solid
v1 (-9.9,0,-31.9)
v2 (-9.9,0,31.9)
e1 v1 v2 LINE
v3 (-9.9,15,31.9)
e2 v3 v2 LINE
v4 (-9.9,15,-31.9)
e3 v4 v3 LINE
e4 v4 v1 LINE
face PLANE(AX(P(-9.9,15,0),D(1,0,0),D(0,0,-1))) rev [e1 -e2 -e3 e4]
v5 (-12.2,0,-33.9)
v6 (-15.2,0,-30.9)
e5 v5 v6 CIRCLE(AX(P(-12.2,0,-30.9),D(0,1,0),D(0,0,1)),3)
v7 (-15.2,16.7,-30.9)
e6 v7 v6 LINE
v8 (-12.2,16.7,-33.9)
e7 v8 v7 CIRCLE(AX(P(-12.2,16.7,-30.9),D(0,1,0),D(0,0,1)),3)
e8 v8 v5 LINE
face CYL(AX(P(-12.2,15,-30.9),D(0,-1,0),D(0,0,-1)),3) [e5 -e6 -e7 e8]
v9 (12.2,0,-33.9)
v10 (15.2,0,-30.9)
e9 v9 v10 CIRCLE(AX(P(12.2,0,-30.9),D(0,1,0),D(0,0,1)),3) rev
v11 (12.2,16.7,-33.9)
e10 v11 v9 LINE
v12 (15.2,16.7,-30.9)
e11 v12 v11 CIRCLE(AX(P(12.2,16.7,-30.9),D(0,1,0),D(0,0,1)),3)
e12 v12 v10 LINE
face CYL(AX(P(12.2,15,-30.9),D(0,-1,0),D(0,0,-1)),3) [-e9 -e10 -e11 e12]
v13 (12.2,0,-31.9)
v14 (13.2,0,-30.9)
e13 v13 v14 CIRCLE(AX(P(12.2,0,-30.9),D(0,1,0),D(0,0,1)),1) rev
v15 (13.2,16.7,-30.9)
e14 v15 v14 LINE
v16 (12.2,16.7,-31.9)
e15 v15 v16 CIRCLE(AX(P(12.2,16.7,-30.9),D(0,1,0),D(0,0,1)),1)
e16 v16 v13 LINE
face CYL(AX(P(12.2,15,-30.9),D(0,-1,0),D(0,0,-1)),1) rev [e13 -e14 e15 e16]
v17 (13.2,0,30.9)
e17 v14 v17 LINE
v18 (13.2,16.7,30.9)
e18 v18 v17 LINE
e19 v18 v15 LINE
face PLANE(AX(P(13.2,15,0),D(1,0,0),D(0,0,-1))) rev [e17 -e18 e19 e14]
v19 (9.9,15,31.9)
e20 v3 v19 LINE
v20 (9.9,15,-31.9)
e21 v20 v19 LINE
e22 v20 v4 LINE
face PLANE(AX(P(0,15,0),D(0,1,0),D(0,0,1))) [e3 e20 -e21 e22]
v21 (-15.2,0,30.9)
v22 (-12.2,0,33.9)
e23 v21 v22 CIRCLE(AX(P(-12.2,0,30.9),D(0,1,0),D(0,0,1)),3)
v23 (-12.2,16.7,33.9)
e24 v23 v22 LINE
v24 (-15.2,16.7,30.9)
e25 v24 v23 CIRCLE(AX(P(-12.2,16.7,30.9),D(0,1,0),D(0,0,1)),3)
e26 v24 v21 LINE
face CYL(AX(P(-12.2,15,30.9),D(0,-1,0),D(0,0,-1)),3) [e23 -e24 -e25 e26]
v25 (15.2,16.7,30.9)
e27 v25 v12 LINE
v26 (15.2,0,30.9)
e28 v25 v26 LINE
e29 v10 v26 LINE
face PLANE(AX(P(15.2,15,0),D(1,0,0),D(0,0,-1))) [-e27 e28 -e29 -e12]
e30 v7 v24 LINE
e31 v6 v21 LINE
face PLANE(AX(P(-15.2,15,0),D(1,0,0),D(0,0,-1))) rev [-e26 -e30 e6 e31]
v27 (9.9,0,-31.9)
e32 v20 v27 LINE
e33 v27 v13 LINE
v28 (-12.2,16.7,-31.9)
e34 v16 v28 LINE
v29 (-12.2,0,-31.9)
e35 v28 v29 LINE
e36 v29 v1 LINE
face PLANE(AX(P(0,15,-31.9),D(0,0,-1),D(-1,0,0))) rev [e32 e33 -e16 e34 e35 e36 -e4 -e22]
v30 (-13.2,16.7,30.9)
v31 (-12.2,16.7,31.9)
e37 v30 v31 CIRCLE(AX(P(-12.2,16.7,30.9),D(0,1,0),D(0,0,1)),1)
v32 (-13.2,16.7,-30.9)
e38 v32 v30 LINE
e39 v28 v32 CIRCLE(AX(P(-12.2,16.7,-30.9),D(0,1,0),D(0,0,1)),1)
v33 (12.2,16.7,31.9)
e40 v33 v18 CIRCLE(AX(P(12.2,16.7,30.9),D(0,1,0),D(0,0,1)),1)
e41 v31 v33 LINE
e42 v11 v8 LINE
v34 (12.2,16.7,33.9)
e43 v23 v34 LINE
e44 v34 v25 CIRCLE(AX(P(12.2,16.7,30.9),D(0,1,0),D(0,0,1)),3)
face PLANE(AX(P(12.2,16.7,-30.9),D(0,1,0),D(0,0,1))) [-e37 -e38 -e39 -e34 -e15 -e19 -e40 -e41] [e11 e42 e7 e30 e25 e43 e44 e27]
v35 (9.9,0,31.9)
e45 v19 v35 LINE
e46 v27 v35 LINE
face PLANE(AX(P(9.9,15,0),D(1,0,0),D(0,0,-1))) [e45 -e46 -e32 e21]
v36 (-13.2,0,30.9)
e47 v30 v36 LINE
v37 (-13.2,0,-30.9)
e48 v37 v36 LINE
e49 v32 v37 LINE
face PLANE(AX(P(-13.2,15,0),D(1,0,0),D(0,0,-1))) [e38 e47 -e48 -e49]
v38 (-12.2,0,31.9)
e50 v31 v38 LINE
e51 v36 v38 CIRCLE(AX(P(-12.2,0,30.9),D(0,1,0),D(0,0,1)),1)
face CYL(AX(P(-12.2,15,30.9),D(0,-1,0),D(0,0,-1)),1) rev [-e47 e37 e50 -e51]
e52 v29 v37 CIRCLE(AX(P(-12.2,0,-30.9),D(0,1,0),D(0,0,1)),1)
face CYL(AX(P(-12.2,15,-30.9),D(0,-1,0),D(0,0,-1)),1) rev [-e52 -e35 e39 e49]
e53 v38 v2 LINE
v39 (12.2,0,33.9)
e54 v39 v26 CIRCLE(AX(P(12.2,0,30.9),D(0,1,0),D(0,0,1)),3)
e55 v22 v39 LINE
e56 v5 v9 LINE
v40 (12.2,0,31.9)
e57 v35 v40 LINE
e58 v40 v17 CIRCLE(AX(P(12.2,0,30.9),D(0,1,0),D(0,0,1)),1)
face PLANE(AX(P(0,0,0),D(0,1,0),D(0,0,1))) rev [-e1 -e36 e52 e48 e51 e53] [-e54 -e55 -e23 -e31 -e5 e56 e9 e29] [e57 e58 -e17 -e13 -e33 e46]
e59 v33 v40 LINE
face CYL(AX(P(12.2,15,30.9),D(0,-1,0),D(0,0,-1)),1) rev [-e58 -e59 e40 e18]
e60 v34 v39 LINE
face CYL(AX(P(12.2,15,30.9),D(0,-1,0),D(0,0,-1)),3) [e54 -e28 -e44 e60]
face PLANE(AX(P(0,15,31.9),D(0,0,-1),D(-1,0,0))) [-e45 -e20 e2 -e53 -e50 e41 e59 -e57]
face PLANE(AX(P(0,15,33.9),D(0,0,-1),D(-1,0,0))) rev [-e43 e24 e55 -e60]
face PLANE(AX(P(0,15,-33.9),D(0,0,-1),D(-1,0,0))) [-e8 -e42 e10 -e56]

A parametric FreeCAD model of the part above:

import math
import FreeCAD as App
import Part
import Sketcher
from FreeCAD import Vector

doc = App.newDocument("Part")
body = doc.addObject("PartDesign::Body", "Body")

# Sketch on XZ plane
sketch1 = body.newObject("Sketcher::SketchObject", "Sketch")
sketch1.AttachmentSupport = (doc.getObject("XZ_Plane"), [""])
sketch1.MapMode = "FlatFace"
sketch1.addGeometry(Part.ArcOfCircle(Part.Circle(Vector(-12.2, -30.9, 0), Vector(0, 0, 1), 3), math.radians(180), math.radians(270)), False)
sketch1.addGeometry(Part.LineSegment(Vector(-15.2, -30.9, 0), Vector(-15.2, 30.9, 0)), False)
sketch1.addGeometry(Part.ArcOfCircle(Part.Circle(Vector(-12.2, 30.9, 0), Vector(0, 0, 1), 3), math.radians(90), math.radians(180)), False)
sketch1.addGeometry(Part.LineSegment(Vector(-12.2, 33.9, 0), Vector(12.2, 33.9, 0)), False)
sketch1.addGeometry(Part.ArcOfCircle(Part.Circle(Vector(12.2, 30.9, 0), Vector(0, 0, 1), 3), math.radians(0), math.radians(90)), False)
sketch1.addGeometry(Part.LineSegment(Vector(15.2, 30.9, 0), Vector(15.2, -30.9, 0)), False)
sketch1.addGeometry(Part.ArcOfCircle(Part.Circle(Vector(12.2, -30.9, 0), Vector(0, 0, 1), 3), math.radians(-90), math.radians(0)), False)
sketch1.addGeometry(Part.LineSegment(Vector(12.2, -33.9, 0), Vector(-12.2, -33.9, 0)), False)
sketch1.addGeometry(Part.ArcOfCircle(Part.Circle(Vector(-12.2, -30.9, 0), Vector(0, 0, 1), 1), math.radians(-180), math.radians(-90)), False)
sketch1.addGeometry(Part.LineSegment(Vector(-12.2, -31.9, 0), Vector(-9.9, -31.9, 0)), False)
sketch1.addGeometry(Part.LineSegment(Vector(-9.9, -31.9, 0), Vector(-9.9, 31.9, 0)), False)
sketch1.addGeometry(Part.LineSegment(Vector(-9.9, 31.9, 0), Vector(-12.2, 31.9, 0)), False)
sketch1.addGeometry(Part.ArcOfCircle(Part.Circle(Vector(-12.2, 30.9, 0), Vector(0, 0, 1), 1), math.radians(90), math.radians(180)), False)
sketch1.addGeometry(Part.LineSegment(Vector(-13.2, 30.9, 0), Vector(-13.2, -30.9, 0)), False)
sketch1.addGeometry(Part.ArcOfCircle(Part.Circle(Vector(12.2, 30.9, 0), Vector(0, 0, 1), 1), math.radians(0), math.radians(90)), False)
sketch1.addGeometry(Part.LineSegment(Vector(12.2, 31.9, 0), Vector(9.9, 31.9, 0)), False)
sketch1.addGeometry(Part.LineSegment(Vector(9.9, 31.9, 0), Vector(9.9, -31.9, 0)), False)
sketch1.addGeometry(Part.LineSegment(Vector(9.9, -31.9, 0), Vector(12.2, -31.9, 0)), False)
sketch1.addGeometry(Part.ArcOfCircle(Part.Circle(Vector(12.2, -30.9, 0), Vector(0, 0, 1), 1), math.radians(-90), math.radians(0)), False)
sketch1.addGeometry(Part.LineSegment(Vector(13.2, -30.9, 0), Vector(13.2, 30.9, 0)), False)
sketch1.addConstraint(Sketcher.Constraint("Tangent", 0, 1, 1, 1))
sketch1.addConstraint(Sketcher.Constraint("Tangent", 1, 2, 2, 2))
sketch1.addConstraint(Sketcher.Constraint("Tangent", 2, 1, 3, 1))
sketch1.addConstraint(Sketcher.Constraint("Tangent", 3, 2, 4, 2))
sketch1.addConstraint(Sketcher.Constraint("Tangent", 4, 1, 5, 1))
sketch1.addConstraint(Sketcher.Constraint("Tangent", 5, 2, 6, 2))
sketch1.addConstraint(Sketcher.Constraint("Tangent", 6, 1, 7, 1))
sketch1.addConstraint(Sketcher.Constraint("Tangent", 7, 2, 0, 2))
sketch1.addConstraint(Sketcher.Constraint("Tangent", 8, 2, 9, 1))
sketch1.addConstraint(Sketcher.Constraint("Coincident", 9, 2, 10, 1))
sketch1.addConstraint(Sketcher.Constraint("Coincident", 10, 2, 11, 1))
sketch1.addConstraint(Sketcher.Constraint("Tangent", 11, 2, 12, 1))
sketch1.addConstraint(Sketcher.Constraint("Tangent", 12, 2, 13, 1))
sketch1.addConstraint(Sketcher.Constraint("Tangent", 13, 2, 8, 1))
sketch1.addConstraint(Sketcher.Constraint("Tangent", 14, 2, 15, 1))
sketch1.addConstraint(Sketcher.Constraint("Coincident", 15, 2, 16, 1))
sketch1.addConstraint(Sketcher.Constraint("Coincident", 16, 2, 17, 1))
sketch1.addConstraint(Sketcher.Constraint("Tangent", 17, 2, 18, 1))
sketch1.addConstraint(Sketcher.Constraint("Tangent", 18, 2, 19, 1))
sketch1.addConstraint(Sketcher.Constraint("Tangent", 19, 2, 14, 1))
sketch1.addConstraint(Sketcher.Constraint("Vertical", 1))
sketch1.addConstraint(Sketcher.Constraint("Horizontal", 3))
sketch1.addConstraint(Sketcher.Constraint("Vertical", 5))
sketch1.addConstraint(Sketcher.Constraint("Horizontal", 7))
sketch1.addConstraint(Sketcher.Constraint("Horizontal", 9))
sketch1.addConstraint(Sketcher.Constraint("Vertical", 10))
sketch1.addConstraint(Sketcher.Constraint("Horizontal", 11))
sketch1.addConstraint(Sketcher.Constraint("Vertical", 13))
sketch1.addConstraint(Sketcher.Constraint("Horizontal", 15))
sketch1.addConstraint(Sketcher.Constraint("Vertical", 16))
sketch1.addConstraint(Sketcher.Constraint("Horizontal", 17))
sketch1.addConstraint(Sketcher.Constraint("Vertical", 19))
sketch1.addConstraint(Sketcher.Constraint("Coincident", 8, 3, 0, 3))
sketch1.addConstraint(Sketcher.Constraint("Coincident", 12, 3, 2, 3))
sketch1.addConstraint(Sketcher.Constraint("Coincident", 14, 3, 4, 3))
sketch1.addConstraint(Sketcher.Constraint("Coincident", 18, 3, 6, 3))
sketch1.addConstraint(Sketcher.Constraint("Equal", 0, 2))
sketch1.addConstraint(Sketcher.Constraint("Equal", 2, 4))
sketch1.addConstraint(Sketcher.Constraint("Equal", 4, 6))
sketch1.addConstraint(Sketcher.Constraint("Equal", 12, 14))
sketch1.addConstraint(Sketcher.Constraint("Symmetric", 0, 3, 4, 3, -1, 1))
sketch1.addConstraint(Sketcher.Constraint("Equal", 11, 15))
sketch1.addConstraint(Sketcher.Constraint("Radius", 0, 3.0))
sketch1.addConstraint(Sketcher.Constraint("Radius", 8, 1.0))
sketch1.addConstraint(Sketcher.Constraint("DistanceX", 3, 1, 3, 2, 24.4))
sketch1.addConstraint(Sketcher.Constraint("DistanceX", 9, 1, 9, 2, 2.3))
sketch1.addConstraint(Sketcher.Constraint("DistanceY", 1, 1, 1, 2, 61.8))
pad1 = body.newObject("PartDesign::Pad", "Pad")
pad1.Profile = sketch1
pad1.Length = 15
pad1.Reversed = True

# Sketch on XZ plane
sketch2 = body.newObject("Sketcher::SketchObject", "Sketch001")
sketch2.AttachmentSupport = (doc.getObject("XZ_Plane"), [""])
sketch2.MapMode = "FlatFace"
sketch2.AttachmentOffset = App.Placement(Vector(0, 0, -15), App.Rotation())
sketch2.addGeometry(Part.LineSegment(Vector(12.2, -33.9, 0), Vector(-12.2, -33.9, 0)), False)
sketch2.addGeometry(Part.ArcOfCircle(Part.Circle(Vector(-12.2, -30.9, 0), Vector(0, 0, 1), 3), math.radians(180), math.radians(270)), False)
sketch2.addGeometry(Part.LineSegment(Vector(-15.2, -30.9, 0), Vector(-15.2, 30.9, 0)), False)
sketch2.addGeometry(Part.ArcOfCircle(Part.Circle(Vector(-12.2, 30.9, 0), Vector(0, 0, 1), 3), math.radians(90), math.radians(180)), False)
sketch2.addGeometry(Part.LineSegment(Vector(-12.2, 33.9, 0), Vector(12.2, 33.9, 0)), False)
sketch2.addGeometry(Part.ArcOfCircle(Part.Circle(Vector(12.2, 30.9, 0), Vector(0, 0, 1), 3), math.radians(0), math.radians(90)), False)
sketch2.addGeometry(Part.LineSegment(Vector(15.2, 30.9, 0), Vector(15.2, -30.9, 0)), False)
sketch2.addGeometry(Part.ArcOfCircle(Part.Circle(Vector(12.2, -30.9, 0), Vector(0, 0, 1), 3), math.radians(-90), math.radians(0)), False)
sketch2.addGeometry(Part.LineSegment(Vector(-12.2, -31.9, 0), Vector(12.2, -31.9, 0)), False)
sketch2.addGeometry(Part.ArcOfCircle(Part.Circle(Vector(12.2, -30.9, 0), Vector(0, 0, 1), 1), math.radians(-90), math.radians(0)), False)
sketch2.addGeometry(Part.LineSegment(Vector(13.2, -30.9, 0), Vector(13.2, 30.9, 0)), False)
sketch2.addGeometry(Part.ArcOfCircle(Part.Circle(Vector(12.2, 30.9, 0), Vector(0, 0, 1), 1), math.radians(0), math.radians(90)), False)
sketch2.addGeometry(Part.LineSegment(Vector(12.2, 31.9, 0), Vector(-12.2, 31.9, 0)), False)
sketch2.addGeometry(Part.ArcOfCircle(Part.Circle(Vector(-12.2, 30.9, 0), Vector(0, 0, 1), 1), math.radians(90), math.radians(180)), False)
sketch2.addGeometry(Part.LineSegment(Vector(-13.2, 30.9, 0), Vector(-13.2, -30.9, 0)), False)
sketch2.addGeometry(Part.ArcOfCircle(Part.Circle(Vector(-12.2, -30.9, 0), Vector(0, 0, 1), 1), math.radians(-180), math.radians(-90)), False)
sketch2.addConstraint(Sketcher.Constraint("Tangent", 0, 2, 1, 2))
sketch2.addConstraint(Sketcher.Constraint("Tangent", 1, 1, 2, 1))
sketch2.addConstraint(Sketcher.Constraint("Tangent", 2, 2, 3, 2))
sketch2.addConstraint(Sketcher.Constraint("Tangent", 3, 1, 4, 1))
sketch2.addConstraint(Sketcher.Constraint("Tangent", 4, 2, 5, 2))
sketch2.addConstraint(Sketcher.Constraint("Tangent", 5, 1, 6, 1))
sketch2.addConstraint(Sketcher.Constraint("Tangent", 6, 2, 7, 2))
sketch2.addConstraint(Sketcher.Constraint("Tangent", 7, 1, 0, 1))
sketch2.addConstraint(Sketcher.Constraint("Tangent", 8, 2, 9, 1))
sketch2.addConstraint(Sketcher.Constraint("Tangent", 9, 2, 10, 1))
sketch2.addConstraint(Sketcher.Constraint("Tangent", 10, 2, 11, 1))
sketch2.addConstraint(Sketcher.Constraint("Tangent", 11, 2, 12, 1))
sketch2.addConstraint(Sketcher.Constraint("Tangent", 12, 2, 13, 1))
sketch2.addConstraint(Sketcher.Constraint("Tangent", 13, 2, 14, 1))
sketch2.addConstraint(Sketcher.Constraint("Tangent", 14, 2, 15, 1))
sketch2.addConstraint(Sketcher.Constraint("Tangent", 15, 2, 8, 1))
sketch2.addConstraint(Sketcher.Constraint("Horizontal", 0))
sketch2.addConstraint(Sketcher.Constraint("Vertical", 2))
sketch2.addConstraint(Sketcher.Constraint("Horizontal", 4))
sketch2.addConstraint(Sketcher.Constraint("Vertical", 6))
sketch2.addConstraint(Sketcher.Constraint("Horizontal", 8))
sketch2.addConstraint(Sketcher.Constraint("Vertical", 10))
sketch2.addConstraint(Sketcher.Constraint("Horizontal", 12))
sketch2.addConstraint(Sketcher.Constraint("Vertical", 14))
sketch2.addConstraint(Sketcher.Constraint("Coincident", 9, 3, 7, 3))
sketch2.addConstraint(Sketcher.Constraint("Coincident", 11, 3, 5, 3))
sketch2.addConstraint(Sketcher.Constraint("Coincident", 13, 3, 3, 3))
sketch2.addConstraint(Sketcher.Constraint("Equal", 1, 3))
sketch2.addConstraint(Sketcher.Constraint("Equal", 3, 5))
sketch2.addConstraint(Sketcher.Constraint("Equal", 5, 7))
sketch2.addConstraint(Sketcher.Constraint("Equal", 13, 15))
sketch2.addConstraint(Sketcher.Constraint("Symmetric", 1, 3, 5, 3, -1, 1))
sketch2.addConstraint(Sketcher.Constraint("Radius", 1, 3.0))
sketch2.addConstraint(Sketcher.Constraint("Radius", 9, 1.0))
sketch2.addConstraint(Sketcher.Constraint("DistanceX", 0, 2, 0, 1, 24.4))
sketch2.addConstraint(Sketcher.Constraint("DistanceY", 2, 1, 2, 2, 61.8))
pad2 = body.newObject("PartDesign::Pad", "Pad001")
pad2.Profile = sketch2
pad2.Length = 1.7
pad2.Reversed = True

doc.recompute()
